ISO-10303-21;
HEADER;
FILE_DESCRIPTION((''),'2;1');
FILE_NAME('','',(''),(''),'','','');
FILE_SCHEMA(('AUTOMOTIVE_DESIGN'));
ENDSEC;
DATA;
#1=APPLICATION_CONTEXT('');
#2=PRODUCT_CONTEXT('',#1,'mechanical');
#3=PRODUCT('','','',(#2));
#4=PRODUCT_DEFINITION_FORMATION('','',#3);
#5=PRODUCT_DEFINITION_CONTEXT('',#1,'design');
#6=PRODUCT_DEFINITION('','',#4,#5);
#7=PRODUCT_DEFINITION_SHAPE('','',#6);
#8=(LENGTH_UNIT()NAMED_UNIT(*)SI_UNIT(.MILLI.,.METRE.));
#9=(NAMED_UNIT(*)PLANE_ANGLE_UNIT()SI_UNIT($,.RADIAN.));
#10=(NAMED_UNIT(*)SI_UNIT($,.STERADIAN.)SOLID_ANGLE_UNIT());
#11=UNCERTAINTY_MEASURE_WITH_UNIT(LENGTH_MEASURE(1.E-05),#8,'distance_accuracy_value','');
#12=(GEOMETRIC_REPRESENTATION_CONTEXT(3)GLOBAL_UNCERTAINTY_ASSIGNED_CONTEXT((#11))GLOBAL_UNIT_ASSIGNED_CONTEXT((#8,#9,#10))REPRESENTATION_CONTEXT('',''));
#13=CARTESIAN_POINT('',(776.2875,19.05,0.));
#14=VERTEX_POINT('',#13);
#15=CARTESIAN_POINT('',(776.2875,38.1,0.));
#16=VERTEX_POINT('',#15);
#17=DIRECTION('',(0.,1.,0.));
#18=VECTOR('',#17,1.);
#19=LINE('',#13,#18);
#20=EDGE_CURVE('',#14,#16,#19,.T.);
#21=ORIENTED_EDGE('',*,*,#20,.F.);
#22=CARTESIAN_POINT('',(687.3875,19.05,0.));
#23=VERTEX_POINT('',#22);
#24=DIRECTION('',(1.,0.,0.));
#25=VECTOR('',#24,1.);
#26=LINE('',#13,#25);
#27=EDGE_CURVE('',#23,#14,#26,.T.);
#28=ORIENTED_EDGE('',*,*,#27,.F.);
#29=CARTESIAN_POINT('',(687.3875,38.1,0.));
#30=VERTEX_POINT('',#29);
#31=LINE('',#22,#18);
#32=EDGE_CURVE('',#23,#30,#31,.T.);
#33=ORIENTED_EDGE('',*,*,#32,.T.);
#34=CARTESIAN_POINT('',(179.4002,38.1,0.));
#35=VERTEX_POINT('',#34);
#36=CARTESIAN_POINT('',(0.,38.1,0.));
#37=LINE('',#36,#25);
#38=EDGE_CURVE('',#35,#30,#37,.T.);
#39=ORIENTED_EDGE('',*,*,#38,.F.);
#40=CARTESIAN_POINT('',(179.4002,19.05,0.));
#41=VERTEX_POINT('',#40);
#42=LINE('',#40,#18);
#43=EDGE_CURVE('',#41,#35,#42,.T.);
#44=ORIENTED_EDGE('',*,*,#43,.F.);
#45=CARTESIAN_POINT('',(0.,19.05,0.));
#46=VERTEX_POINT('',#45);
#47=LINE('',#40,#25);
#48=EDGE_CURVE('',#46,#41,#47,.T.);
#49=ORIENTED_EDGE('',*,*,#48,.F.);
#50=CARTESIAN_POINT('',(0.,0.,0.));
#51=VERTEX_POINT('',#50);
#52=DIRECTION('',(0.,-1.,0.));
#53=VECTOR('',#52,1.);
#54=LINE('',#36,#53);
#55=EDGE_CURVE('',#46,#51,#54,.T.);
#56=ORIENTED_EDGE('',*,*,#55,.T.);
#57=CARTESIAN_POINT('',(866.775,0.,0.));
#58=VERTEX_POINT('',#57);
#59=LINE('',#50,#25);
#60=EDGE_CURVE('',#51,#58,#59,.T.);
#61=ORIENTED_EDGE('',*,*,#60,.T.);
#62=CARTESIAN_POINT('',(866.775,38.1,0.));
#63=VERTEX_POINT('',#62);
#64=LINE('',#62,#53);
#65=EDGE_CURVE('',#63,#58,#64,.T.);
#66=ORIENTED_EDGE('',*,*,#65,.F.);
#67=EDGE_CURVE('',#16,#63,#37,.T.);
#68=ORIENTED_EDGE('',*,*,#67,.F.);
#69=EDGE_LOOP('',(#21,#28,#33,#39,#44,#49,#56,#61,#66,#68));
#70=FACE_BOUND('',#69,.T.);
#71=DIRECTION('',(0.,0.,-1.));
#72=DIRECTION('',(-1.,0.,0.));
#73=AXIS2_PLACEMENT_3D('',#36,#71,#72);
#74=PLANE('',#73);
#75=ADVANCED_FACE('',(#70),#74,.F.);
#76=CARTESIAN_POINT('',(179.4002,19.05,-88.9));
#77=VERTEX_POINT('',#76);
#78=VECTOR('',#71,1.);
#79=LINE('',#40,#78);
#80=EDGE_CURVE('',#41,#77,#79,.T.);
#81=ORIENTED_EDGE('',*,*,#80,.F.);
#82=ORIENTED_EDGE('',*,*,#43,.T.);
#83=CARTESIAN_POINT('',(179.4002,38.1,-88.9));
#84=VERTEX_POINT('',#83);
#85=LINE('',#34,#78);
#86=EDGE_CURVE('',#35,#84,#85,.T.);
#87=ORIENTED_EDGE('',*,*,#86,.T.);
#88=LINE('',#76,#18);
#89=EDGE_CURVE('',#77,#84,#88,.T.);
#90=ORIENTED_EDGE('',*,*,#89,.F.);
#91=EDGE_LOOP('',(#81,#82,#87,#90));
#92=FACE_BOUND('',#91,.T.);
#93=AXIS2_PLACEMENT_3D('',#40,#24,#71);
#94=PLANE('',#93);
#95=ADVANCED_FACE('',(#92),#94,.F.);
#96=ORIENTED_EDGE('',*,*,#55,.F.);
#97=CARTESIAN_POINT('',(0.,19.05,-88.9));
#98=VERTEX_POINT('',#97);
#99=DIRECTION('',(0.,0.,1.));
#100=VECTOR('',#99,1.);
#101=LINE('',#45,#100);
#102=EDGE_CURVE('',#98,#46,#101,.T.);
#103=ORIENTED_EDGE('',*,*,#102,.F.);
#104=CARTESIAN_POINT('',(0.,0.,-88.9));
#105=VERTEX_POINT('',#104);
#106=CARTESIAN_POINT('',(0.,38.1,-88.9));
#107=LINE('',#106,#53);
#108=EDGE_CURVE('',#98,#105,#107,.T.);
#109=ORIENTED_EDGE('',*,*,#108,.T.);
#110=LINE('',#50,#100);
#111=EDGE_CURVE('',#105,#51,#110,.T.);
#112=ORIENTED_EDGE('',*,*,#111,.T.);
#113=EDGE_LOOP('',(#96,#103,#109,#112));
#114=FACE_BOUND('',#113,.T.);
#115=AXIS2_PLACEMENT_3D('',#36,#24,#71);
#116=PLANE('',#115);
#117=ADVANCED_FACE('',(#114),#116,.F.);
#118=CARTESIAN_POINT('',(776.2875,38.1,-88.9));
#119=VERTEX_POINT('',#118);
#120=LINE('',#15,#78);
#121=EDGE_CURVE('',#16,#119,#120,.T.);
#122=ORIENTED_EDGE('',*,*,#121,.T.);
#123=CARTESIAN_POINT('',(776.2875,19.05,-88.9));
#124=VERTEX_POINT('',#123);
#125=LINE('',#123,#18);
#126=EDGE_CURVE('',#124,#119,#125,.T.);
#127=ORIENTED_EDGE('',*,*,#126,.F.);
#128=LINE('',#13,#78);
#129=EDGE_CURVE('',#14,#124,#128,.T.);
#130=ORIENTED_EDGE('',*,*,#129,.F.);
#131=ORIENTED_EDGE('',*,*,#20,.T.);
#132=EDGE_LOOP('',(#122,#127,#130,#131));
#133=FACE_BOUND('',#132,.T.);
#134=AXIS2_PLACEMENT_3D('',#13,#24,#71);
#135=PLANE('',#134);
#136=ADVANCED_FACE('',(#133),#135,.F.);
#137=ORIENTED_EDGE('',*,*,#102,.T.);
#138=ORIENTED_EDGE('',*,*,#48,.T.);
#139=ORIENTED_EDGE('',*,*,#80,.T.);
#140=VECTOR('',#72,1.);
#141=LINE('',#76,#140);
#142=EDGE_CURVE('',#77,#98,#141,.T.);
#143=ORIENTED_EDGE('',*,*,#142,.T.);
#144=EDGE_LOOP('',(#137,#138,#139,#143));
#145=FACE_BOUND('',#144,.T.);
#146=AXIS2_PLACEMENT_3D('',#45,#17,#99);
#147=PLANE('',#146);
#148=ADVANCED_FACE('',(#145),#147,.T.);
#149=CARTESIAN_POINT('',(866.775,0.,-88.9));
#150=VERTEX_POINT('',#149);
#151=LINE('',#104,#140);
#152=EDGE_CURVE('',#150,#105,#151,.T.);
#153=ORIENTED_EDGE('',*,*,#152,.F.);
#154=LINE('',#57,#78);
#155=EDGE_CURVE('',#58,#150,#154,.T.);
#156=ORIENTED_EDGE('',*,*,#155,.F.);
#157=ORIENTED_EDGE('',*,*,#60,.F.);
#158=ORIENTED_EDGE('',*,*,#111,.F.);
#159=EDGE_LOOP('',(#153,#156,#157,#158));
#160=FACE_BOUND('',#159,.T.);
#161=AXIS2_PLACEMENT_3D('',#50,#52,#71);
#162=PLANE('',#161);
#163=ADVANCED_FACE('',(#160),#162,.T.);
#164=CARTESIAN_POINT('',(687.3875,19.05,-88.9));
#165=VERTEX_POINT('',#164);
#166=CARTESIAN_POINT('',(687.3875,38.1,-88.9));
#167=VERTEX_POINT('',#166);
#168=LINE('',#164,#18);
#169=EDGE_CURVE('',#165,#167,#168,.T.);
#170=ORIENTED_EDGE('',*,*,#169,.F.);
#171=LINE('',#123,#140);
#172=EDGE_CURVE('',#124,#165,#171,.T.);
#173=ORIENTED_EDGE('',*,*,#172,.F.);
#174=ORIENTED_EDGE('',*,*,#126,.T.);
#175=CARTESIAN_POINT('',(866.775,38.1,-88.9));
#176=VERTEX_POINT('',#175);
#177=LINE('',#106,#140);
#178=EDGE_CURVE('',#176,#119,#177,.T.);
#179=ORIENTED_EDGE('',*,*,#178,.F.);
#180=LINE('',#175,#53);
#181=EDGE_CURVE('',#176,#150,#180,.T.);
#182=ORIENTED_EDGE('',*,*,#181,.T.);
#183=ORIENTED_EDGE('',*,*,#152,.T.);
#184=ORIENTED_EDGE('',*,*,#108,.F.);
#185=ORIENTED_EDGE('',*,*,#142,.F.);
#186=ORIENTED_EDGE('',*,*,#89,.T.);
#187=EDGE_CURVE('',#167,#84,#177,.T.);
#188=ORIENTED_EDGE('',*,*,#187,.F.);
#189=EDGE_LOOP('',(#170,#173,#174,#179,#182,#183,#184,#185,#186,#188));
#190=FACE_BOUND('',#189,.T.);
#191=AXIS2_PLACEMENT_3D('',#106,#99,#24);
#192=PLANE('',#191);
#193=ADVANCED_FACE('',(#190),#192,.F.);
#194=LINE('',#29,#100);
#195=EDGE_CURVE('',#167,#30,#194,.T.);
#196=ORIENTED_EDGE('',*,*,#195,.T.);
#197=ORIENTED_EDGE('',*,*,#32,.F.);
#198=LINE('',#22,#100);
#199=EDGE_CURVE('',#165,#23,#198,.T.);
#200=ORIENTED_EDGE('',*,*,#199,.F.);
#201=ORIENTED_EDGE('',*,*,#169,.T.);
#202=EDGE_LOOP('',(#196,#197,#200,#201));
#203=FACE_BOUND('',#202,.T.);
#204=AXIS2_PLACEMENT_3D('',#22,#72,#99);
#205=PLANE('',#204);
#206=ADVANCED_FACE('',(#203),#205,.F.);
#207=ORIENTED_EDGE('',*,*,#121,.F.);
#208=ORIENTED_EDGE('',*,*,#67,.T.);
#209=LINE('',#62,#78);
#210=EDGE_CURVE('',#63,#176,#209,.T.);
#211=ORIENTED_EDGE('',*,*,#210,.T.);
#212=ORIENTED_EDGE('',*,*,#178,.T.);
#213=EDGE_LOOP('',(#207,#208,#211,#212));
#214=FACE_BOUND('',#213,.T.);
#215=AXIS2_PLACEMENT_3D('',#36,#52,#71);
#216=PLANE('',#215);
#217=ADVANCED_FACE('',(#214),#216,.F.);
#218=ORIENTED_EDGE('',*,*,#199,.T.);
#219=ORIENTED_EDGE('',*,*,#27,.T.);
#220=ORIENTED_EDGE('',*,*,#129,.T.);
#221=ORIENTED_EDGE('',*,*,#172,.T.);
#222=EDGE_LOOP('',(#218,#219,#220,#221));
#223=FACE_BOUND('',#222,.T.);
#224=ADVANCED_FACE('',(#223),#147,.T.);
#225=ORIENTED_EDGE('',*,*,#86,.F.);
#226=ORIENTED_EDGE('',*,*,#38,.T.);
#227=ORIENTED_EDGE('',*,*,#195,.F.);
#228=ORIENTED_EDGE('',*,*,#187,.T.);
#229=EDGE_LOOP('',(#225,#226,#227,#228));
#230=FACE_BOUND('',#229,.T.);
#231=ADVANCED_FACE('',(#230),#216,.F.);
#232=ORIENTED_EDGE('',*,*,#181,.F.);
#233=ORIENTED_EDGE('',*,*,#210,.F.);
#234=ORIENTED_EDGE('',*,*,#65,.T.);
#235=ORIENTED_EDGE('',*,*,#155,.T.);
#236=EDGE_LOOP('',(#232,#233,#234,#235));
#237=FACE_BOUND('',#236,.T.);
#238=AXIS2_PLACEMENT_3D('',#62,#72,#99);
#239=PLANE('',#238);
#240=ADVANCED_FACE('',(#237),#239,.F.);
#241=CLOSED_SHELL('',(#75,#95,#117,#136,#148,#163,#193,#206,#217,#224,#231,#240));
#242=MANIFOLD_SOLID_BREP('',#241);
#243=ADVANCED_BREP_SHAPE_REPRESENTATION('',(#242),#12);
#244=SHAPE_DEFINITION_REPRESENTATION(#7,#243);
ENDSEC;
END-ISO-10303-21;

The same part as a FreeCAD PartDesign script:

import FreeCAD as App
import Part
import Sketcher
Q = App.Units.Quantity


def add_polygon(sketch, points):
    """Adds a closed chain of lines whose ends are joined by coincident constraints."""
    first, n = sketch.GeometryCount, len(points)
    for a, b in zip(points, points[1:] + points[:1]):
        sketch.addGeometry(Part.LineSegment(App.Vector(*a, 0), App.Vector(*b, 0)), False)
    for i in range(n):
        sketch.addConstraint(Sketcher.Constraint("Coincident", first + i, 2, first + (i + 1) % n, 1))

doc = App.newDocument("Part")
params = doc.addObject("Spreadsheet::Sheet", "Params")
for row, (alias, value) in enumerate([
    ("sketch1_height", "3.5 in"),
    ("sketch1_width", "34.125 in"),
    ("pad1_length", "1.5 in"),
    ("sketch2_width", "3.5 in"),
    ("sketch2_width2", "7.063 in"),
    ("pocket1_length", "0.75 in"),
], start=1):
    params.set(f"A{row}", alias)
    params.set(f"B{row}", "=" + value)
    params.setAlias(f"B{row}", alias)

body = doc.addObject("PartDesign::Body", "Body")

sketch1 = body.newObject("Sketcher::SketchObject", "Sketch")
sketch1.AttachmentSupport = (doc.getObject("XZ_Plane"), [""])
sketch1.MapMode = "FlatFace"
add_polygon(sketch1, [(0, -89), (0, 0), (867, 0), (867, -89)])
sketch1.addConstraint([
    Sketcher.Constraint("Vertical", 0),
    Sketcher.Constraint("Horizontal", 1),
    Sketcher.Constraint("Vertical", 2),
    Sketcher.Constraint("Horizontal", 3),
    Sketcher.Constraint("Coincident", 0, 2, -1, 1),
    Sketcher.Constraint("DistanceY", 0, 1, 0, 2, Q("3.5 in")),
    Sketcher.Constraint("DistanceX", 1, 1, 1, 2, Q("34.125 in")),
])
sketch1.setExpression("Constraints[9]", "Params.sketch1_height")
sketch1.setExpression("Constraints[10]", "Params.sketch1_width")
pad1 = body.newObject("PartDesign::Pad", "Pad")
pad1.Profile = sketch1
pad1.setExpression("Length", "Params.pad1_length")
pad1.Reversed = True

sketch2 = body.newObject("Sketcher::SketchObject", "Sketch001")
sketch2.AttachmentSupport = (doc.getObject("XZ_Plane"), [""])
sketch2.MapMode = "FlatFace"
sketch2.AttachmentOffset = App.Placement(App.Vector(0, 0, -1.5 * 25.4), App.Rotation())
add_polygon(sketch2, [(687, -89), (687, 0), (776, 0), (776, -89)])
add_polygon(sketch2, [(0, -89), (0, 0), (179, 0), (179, -89)])
sketch2.addConstraint([
    Sketcher.Constraint("Vertical", 0),
    Sketcher.Constraint("Horizontal", 1),
    Sketcher.Constraint("Vertical", 2),
    Sketcher.Constraint("Horizontal", 3),
    Sketcher.Constraint("Vertical", 4),
    Sketcher.Constraint("Horizontal", 5),
    Sketcher.Constraint("Vertical", 6),
    Sketcher.Constraint("Horizontal", 7),
    Sketcher.Constraint("Coincident", 4, 2, -1, 1),
    Sketcher.Constraint("PointOnObject", 0, 2, -1),
    Sketcher.Constraint("Horizontal", 3, 2, 6, 2),
    Sketcher.Constraint("Equal", 3, 0),
    Sketcher.Constraint("DistanceX", 1, 1, 1, 2, Q("3.5 in")),
    Sketcher.Constraint("DistanceX", 5, 1, 5, 2, Q("7.063 in")),
    Sketcher.Constraint("DistanceX", -1, 1, 0, 2, Q("27.0625 in")),
])
sketch2.setExpression("Constraints[20]", "Params.sketch2_width")
sketch2.setExpression("Constraints[21]", "Params.sketch2_width2")
pocket1 = body.newObject("PartDesign::Pocket", "Pocket")
pocket1.Profile = sketch2
pocket1.setExpression("Length", "Params.pocket1_length")
pocket1.Reversed = True

doc.recompute()
